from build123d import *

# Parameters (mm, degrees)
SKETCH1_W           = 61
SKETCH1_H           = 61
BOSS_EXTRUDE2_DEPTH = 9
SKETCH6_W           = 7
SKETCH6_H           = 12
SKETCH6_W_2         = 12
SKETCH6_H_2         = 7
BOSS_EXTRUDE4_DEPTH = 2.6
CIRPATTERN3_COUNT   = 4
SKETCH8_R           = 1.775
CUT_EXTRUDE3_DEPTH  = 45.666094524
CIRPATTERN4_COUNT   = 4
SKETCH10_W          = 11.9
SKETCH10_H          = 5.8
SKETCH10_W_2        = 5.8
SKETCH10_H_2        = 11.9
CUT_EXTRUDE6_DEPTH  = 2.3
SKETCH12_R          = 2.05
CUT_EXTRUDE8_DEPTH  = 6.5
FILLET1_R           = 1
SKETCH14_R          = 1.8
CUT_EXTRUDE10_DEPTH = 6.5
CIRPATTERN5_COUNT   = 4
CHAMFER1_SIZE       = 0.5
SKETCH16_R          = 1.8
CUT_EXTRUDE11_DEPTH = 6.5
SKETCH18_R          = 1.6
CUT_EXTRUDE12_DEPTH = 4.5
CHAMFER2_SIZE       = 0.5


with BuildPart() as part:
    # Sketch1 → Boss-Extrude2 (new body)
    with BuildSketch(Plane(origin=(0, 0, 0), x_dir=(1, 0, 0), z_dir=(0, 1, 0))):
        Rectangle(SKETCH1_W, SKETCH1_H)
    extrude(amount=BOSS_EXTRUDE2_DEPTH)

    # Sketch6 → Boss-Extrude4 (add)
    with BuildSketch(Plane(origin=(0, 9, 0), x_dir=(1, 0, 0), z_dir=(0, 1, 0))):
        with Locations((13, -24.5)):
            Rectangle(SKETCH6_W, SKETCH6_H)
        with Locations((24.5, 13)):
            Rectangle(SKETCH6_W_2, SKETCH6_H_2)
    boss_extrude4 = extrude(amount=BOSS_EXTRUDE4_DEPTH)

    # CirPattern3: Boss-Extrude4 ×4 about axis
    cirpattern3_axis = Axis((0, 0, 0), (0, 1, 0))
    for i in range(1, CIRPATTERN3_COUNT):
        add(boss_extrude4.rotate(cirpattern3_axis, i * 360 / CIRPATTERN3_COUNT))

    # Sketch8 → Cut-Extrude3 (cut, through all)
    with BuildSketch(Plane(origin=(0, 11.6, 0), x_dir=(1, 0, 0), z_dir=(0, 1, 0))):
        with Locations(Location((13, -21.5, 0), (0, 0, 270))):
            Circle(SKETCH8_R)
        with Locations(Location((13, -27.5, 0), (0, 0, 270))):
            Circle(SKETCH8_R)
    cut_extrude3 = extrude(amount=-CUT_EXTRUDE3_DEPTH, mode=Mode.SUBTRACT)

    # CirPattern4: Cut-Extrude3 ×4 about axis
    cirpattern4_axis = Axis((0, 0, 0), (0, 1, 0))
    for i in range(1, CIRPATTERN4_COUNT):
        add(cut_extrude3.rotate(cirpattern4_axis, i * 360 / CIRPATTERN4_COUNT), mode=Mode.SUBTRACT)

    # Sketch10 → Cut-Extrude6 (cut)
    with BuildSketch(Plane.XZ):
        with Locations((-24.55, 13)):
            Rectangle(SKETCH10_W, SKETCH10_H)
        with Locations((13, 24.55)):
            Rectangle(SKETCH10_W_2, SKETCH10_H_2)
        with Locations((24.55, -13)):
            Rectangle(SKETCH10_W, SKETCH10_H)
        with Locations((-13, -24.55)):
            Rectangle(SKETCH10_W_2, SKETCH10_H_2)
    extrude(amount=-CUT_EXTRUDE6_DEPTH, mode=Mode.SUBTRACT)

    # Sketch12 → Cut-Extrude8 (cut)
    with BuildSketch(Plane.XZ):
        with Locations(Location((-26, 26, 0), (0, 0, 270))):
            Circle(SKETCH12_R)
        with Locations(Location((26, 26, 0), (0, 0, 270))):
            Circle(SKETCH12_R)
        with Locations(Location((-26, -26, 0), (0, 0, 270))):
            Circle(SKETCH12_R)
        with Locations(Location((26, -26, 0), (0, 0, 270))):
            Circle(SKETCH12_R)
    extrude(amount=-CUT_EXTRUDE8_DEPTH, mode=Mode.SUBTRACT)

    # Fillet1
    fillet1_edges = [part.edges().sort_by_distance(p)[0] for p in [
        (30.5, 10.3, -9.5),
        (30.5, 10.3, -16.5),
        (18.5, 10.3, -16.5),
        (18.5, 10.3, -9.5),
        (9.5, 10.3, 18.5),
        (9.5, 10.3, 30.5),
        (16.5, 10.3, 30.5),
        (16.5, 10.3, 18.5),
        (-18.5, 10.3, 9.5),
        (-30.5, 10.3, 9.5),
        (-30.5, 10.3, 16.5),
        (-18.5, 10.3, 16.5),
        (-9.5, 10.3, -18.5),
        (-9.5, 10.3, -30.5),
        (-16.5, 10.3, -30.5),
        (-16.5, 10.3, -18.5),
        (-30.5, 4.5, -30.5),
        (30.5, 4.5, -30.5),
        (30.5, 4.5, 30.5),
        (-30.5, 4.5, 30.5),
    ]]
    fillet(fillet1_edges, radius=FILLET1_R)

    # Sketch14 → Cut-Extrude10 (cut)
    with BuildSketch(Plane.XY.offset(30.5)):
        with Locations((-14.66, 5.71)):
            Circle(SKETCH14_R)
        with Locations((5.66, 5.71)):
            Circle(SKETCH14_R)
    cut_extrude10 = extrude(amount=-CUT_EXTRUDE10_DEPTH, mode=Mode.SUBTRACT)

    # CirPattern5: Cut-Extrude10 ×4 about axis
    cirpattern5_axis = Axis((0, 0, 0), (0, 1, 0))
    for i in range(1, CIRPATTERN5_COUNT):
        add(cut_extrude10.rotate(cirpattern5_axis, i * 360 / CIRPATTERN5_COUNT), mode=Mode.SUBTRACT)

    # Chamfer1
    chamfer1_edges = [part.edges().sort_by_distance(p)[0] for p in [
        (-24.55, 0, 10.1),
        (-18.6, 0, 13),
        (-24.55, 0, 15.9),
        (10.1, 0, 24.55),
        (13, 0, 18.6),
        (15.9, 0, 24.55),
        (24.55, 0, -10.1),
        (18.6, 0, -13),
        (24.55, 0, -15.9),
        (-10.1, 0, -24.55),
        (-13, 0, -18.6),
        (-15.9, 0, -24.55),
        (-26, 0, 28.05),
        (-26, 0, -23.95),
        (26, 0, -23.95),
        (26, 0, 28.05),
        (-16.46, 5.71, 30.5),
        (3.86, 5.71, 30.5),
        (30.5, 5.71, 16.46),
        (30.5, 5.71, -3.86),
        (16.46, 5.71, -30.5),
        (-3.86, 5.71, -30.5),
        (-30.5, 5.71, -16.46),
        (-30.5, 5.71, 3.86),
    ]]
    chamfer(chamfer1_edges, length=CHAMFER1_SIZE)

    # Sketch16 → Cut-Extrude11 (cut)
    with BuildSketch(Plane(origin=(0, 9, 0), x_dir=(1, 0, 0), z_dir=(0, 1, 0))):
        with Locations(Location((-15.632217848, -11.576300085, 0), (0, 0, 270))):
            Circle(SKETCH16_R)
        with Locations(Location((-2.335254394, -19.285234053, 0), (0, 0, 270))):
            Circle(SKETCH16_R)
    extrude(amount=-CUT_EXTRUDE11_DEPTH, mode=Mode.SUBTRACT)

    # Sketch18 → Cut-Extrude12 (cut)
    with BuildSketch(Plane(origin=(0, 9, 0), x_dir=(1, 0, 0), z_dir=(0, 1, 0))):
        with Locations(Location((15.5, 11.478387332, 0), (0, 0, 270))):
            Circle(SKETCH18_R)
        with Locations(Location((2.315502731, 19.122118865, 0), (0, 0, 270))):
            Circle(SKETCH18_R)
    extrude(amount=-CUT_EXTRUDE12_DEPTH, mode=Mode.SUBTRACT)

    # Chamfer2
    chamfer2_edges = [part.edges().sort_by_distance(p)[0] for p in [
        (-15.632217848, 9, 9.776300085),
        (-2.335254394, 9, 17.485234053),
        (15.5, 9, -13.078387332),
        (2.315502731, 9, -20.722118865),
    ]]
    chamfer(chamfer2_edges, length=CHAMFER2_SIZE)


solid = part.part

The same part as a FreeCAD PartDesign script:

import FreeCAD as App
import Part
import Sketcher
from FreeCAD import Vector


def edges_at(feature, points):
    """Names of the edges that pass closest to the given points."""
    edges = feature.Shape.Edges
    near = lambda p: min(range(len(edges)), key=lambda i: edges[i].distToShape(Part.Vertex(*p))[0])
    return sorted({f"Edge{near(p) + 1}" for p in points})


def add_polygon(sketch, points):
    """Adds a closed chain of lines whose ends are joined by coincident constraints."""
    first, n = sketch.GeometryCount, len(points)
    for a, b in zip(points, points[1:] + points[:1]):
        sketch.addGeometry(Part.LineSegment(App.Vector(*a, 0), App.Vector(*b, 0)), False)
    for i in range(n):
        sketch.addConstraint(Sketcher.Constraint("Coincident", first + i, 2, first + (i + 1) % n, 1))

doc = App.newDocument("Part")
body = doc.addObject("PartDesign::Body", "Body")

# Sketch on XZ plane
sketch1 = doc.addObject("Sketcher::SketchObject", "Sketch")
body.addObject(sketch1)
sketch1.AttachmentSupport = (doc.XZ_Plane, [""])
sketch1.MapMode = "FlatFace"
add_polygon(sketch1, [(-30, -30), (-30, 30), (30, 30), (30, -30)])  # lines 0-3
sketch1.addConstraint(Sketcher.Constraint("Vertical", 0))
sketch1.addConstraint(Sketcher.Constraint("Horizontal", 1))
sketch1.addConstraint(Sketcher.Constraint("Vertical", 2))
sketch1.addConstraint(Sketcher.Constraint("Horizontal", 3))
sketch1.addConstraint(Sketcher.Constraint("Symmetric", 0, 2, 2, 2, -1, 1))
sketch1.addConstraint(Sketcher.Constraint("Equal", 3, 0))
sketch1.addConstraint(Sketcher.Constraint("DistanceX", 1, 1, 1, 2, 61.0))
pad1 = doc.addObject("PartDesign::Pad", "Pad")
body.addObject(pad1)
pad1.Profile = sketch1
pad1.Length = 9
pad1.Reversed = True

# Sketch on XZ plane
sketch2 = doc.addObject("Sketcher::SketchObject", "Sketch001")
body.addObject(sketch2)
sketch2.AttachmentSupport = (doc.XZ_Plane, [""])
sketch2.MapMode = "FlatFace"
sketch2.AttachmentOffset = App.Placement(Vector(0, 0, -9), App.Rotation())
add_polygon(sketch2, [(10, 18), (10, 30), (16, 30), (16, 18)])  # lines 0-3
add_polygon(sketch2, [(18, -16), (18, -10), (30, -10), (30, -16)])  # lines 4-7
sketch2.addConstraint(Sketcher.Constraint("Vertical", 0))
sketch2.addConstraint(Sketcher.Constraint("Horizontal", 1))
sketch2.addConstraint(Sketcher.Constraint("Vertical", 2))
sketch2.addConstraint(Sketcher.Constraint("Horizontal", 3))
sketch2.addConstraint(Sketcher.Constraint("Vertical", 4))
sketch2.addConstraint(Sketcher.Constraint("Horizontal", 5))
sketch2.addConstraint(Sketcher.Constraint("Vertical", 6))
sketch2.addConstraint(Sketcher.Constraint("Horizontal", 7))
sketch2.addConstraint(Sketcher.Constraint("Equal", 7, 0))
sketch2.addConstraint(Sketcher.Constraint("Equal", 3, 4))
sketch2.addConstraint(Sketcher.Constraint("DistanceX", 1, 1, 1, 2, 7.0))
sketch2.addConstraint(Sketcher.Constraint("DistanceX", 5, 1, 5, 2, 12.0))
sketch2.addConstraint(Sketcher.Constraint("DistanceX", 2, 2, 4, 2, 2.0))
sketch2.addConstraint(Sketcher.Constraint("DistanceY", 4, 2, 2, 2, 28.0))
sketch2.addConstraint(Sketcher.Constraint("DistanceX", -1, 1, 0, 2, 9.5))
sketch2.addConstraint(Sketcher.Constraint("DistanceY", -1, 1, 0, 2, 30.5))
pad2 = doc.addObject("PartDesign::Pad", "Pad001")
body.addObject(pad2)
pad2.Profile = sketch2
pad2.Length = 2.6
pad2.Reversed = True
doc.recompute()

polarpattern = doc.addObject("PartDesign::PolarPattern", "PolarPattern")
body.addObject(polarpattern)
polarpattern.Originals = [pad2]
polarpattern.Axis = (doc.Y_Axis, [""])
polarpattern.Angle = 360
polarpattern.Occurrences = 4
body.Tip = polarpattern

# Sketch on XZ plane
sketch3 = doc.addObject("Sketcher::SketchObject", "Sketch002")
body.addObject(sketch3)
sketch3.AttachmentSupport = (doc.XZ_Plane, [""])
sketch3.MapMode = "FlatFace"
sketch3.AttachmentOffset = App.Placement(Vector(0, 0, -11.6), App.Rotation())
sketch3.addGeometry(Part.Circle(Vector(13, 21.5, 0), Vector(0, 0, 1), 1.8), False)
sketch3.addGeometry(Part.Circle(Vector(13, 27.5, 0), Vector(0, 0, 1), 1.8), False)
sketch3.addConstraint(Sketcher.Constraint("Equal", 0, 1))
sketch3.addConstraint(Sketcher.Constraint("Vertical", 0, 3, 1, 3))
sketch3.addConstraint(Sketcher.Constraint("Diameter", 0, 3.55))
sketch3.addConstraint(Sketcher.Constraint("DistanceX", -1, 1, 0, 3, 13.0))
sketch3.addConstraint(Sketcher.Constraint("DistanceY", 0, 3, 1, 3, 6.0))
sketch3.addConstraint(Sketcher.Constraint("DistanceY", -1, 1, 0, 3, 21.5))
pocket1 = doc.addObject("PartDesign::Pocket", "Pocket")
body.addObject(pocket1)
pocket1.Profile = sketch3
pocket1.Type = "ThroughAll"
pocket1.Reversed = True
doc.recompute()

polarpattern2 = doc.addObject("PartDesign::PolarPattern", "PolarPattern001")
body.addObject(polarpattern2)
polarpattern2.Originals = [pocket1]
polarpattern2.Axis = (doc.Y_Axis, [""])
polarpattern2.Angle = 360
polarpattern2.Occurrences = 4
body.Tip = polarpattern2

# Sketch on XZ plane
sketch4 = doc.addObject("Sketcher::SketchObject", "Sketch003")
body.addObject(sketch4)
sketch4.AttachmentSupport = (doc.XZ_Plane, [""])
sketch4.MapMode = "FlatFace"
add_polygon(sketch4, [(-30, 16), (-30, 10), (-19, 10), (-19, 16)])  # lines 0-3
add_polygon(sketch4, [(10, 30), (10, 19), (16, 19), (16, 30)])  # lines 4-7
add_polygon(sketch4, [(19, -10), (19, -16), (30, -16), (30, -10)])  # lines 8-11
add_polygon(sketch4, [(-16, -19), (-16, -30), (-10, -30), (-10, -19)])  # lines 12-15
sketch4.addConstraint(Sketcher.Constraint("Vertical", 0))
sketch4.addConstraint(Sketcher.Constraint("Horizontal", 1))
sketch4.addConstraint(Sketcher.Constraint("Vertical", 2))
sketch4.addConstraint(Sketcher.Constraint("Horizontal", 3))
sketch4.addConstraint(Sketcher.Constraint("Vertical", 4))
sketch4.addConstraint(Sketcher.Constraint("Horizontal", 5))
sketch4.addConstraint(Sketcher.Constraint("Vertical", 6))
sketch4.addConstraint(Sketcher.Constraint("Horizontal", 7))
sketch4.addConstraint(Sketcher.Constraint("Vertical", 8))
sketch4.addConstraint(Sketcher.Constraint("Horizontal", 9))
sketch4.addConstraint(Sketcher.Constraint("Vertical", 10))
sketch4.addConstraint(Sketcher.Constraint("Horizontal", 11))
sketch4.addConstraint(Sketcher.Constraint("Vertical", 12))
sketch4.addConstraint(Sketcher.Constraint("Horizontal", 13))
sketch4.addConstraint(Sketcher.Constraint("Vertical", 14))
sketch4.addConstraint(Sketcher.Constraint("Horizontal", 15))
sketch4.addConstraint(Sketcher.Constraint("Symmetric", 2, 2, 8, 2, -1, 1))
sketch4.addConstraint(Sketcher.Constraint("Symmetric", 0, 2, 10, 2, -1, 1))
sketch4.addConstraint(Sketcher.Constraint("Symmetric", 6, 2, 12, 2, -1, 1))
sketch4.addConstraint(Sketcher.Constraint("Symmetric", 4, 2, 14, 2, -1, 1))
sketch4.addConstraint(Sketcher.Constraint("Equal", 15, 0))
sketch4.addConstraint(Sketcher.Constraint("Equal", 11, 4))
sketch4.addConstraint(Sketcher.Constraint("DistanceX", 1, 1, 1, 2, 11.9))
sketch4.addConstraint(Sketcher.Constraint("DistanceX", 5, 1, 5, 2, 5.8))
sketch4.addConstraint(Sketcher.Constraint("DistanceY", 8, 2, 1, 2, 26.0))
sketch4.addConstraint(Sketcher.Constraint("DistanceX", 0, 2, -1, 1, 30.5))
sketch4.addConstraint(Sketcher.Constraint("DistanceX", -1, 1, 4, 2, 10.1))
sketch4.addConstraint(Sketcher.Constraint("DistanceY", -1, 1, 4, 2, 18.6))
pocket2 = doc.addObject("PartDesign::Pocket", "Pocket001")
body.addObject(pocket2)
pocket2.Profile = sketch4
pocket2.Length = 2.3

# Sketch on XZ plane
sketch5 = doc.addObject("Sketcher::SketchObject", "Sketch004")
body.addObject(sketch5)
sketch5.AttachmentSupport = (doc.XZ_Plane, [""])
sketch5.MapMode = "FlatFace"
sketch5.addGeometry(Part.Circle(Vector(-26, 26, 0), Vector(0, 0, 1), 2), False)
sketch5.addGeometry(Part.Circle(Vector(26, 26, 0), Vector(0, 0, 1), 2), False)
sketch5.addGeometry(Part.Circle(Vector(-26, -26, 0), Vector(0, 0, 1), 2), False)
sketch5.addGeometry(Part.Circle(Vector(26, -26, 0), Vector(0, 0, 1), 2), False)
sketch5.addConstraint(Sketcher.Constraint("Equal", 0, 1))
sketch5.addConstraint(Sketcher.Constraint("Equal", 1, 2))
sketch5.addConstraint(Sketcher.Constraint("Equal", 2, 3))
sketch5.addConstraint(Sketcher.Constraint("Symmetric", 1, 3, 2, 3, -1, 1))
sketch5.addConstraint(Sketcher.Constraint("Symmetric", 0, 3, 3, 3, -1, 1))
sketch5.addConstraint(Sketcher.Constraint("Symmetric", 0, 3, 1, 3, -2))
sketch5.addConstraint(Sketcher.Constraint("Diameter", 0, 4.1))
sketch5.addConstraint(Sketcher.Constraint("DistanceX", 0, 3, -1, 1, 26.0))
sketch5.addConstraint(Sketcher.Constraint("DistanceY", -1, 1, 0, 3, 26.0))
pocket3 = doc.addObject("PartDesign::Pocket", "Pocket002")
body.addObject(pocket3)
pocket3.Profile = sketch5
pocket3.Length = 6.5
doc.recompute()

fillet = doc.addObject("PartDesign::Fillet", "Fillet")
body.addObject(fillet)
fillet.Base = (pocket3, edges_at(pocket3, [
    (30.5, 10.3, -9.5),
    (30.5, 10.3, -16.5),
    (18.5, 10.3, -16.5),
    (18.5, 10.3, -9.5),
    (9.5, 10.3, 18.5),
    (9.5, 10.3, 30.5),
    (16.5, 10.3, 30.5),
    (16.5, 10.3, 18.5),
    (-18.5, 10.3, 9.5),
    (-30.5, 10.3, 9.5),
    (-30.5, 10.3, 16.5),
    (-18.5, 10.3, 16.5),
    (-9.5, 10.3, -18.5),
    (-9.5, 10.3, -30.5),
    (-16.5, 10.3, -30.5),
    (-16.5, 10.3, -18.5),
    (-30.5, 4.5, -30.5),
    (30.5, 4.5, -30.5),
    (30.5, 4.5, 30.5),
    (-30.5, 4.5, 30.5),
]))
fillet.Radius = 1

# Sketch on XY plane
sketch6 = doc.addObject("Sketcher::SketchObject", "Sketch005")
body.addObject(sketch6)
sketch6.AttachmentSupport = (doc.XY_Plane, [""])
sketch6.MapMode = "FlatFace"
sketch6.AttachmentOffset = App.Placement(Vector(0, 0, 30.5), App.Rotation())
sketch6.addGeometry(Part.Circle(Vector(-14.7, 5.7, 0), Vector(0, 0, 1), 1.8), False)
sketch6.addGeometry(Part.Circle(Vector(5.7, 5.7, 0), Vector(0, 0, 1), 1.8), False)
sketch6.addConstraint(Sketcher.Constraint("Equal", 0, 1))
sketch6.addConstraint(Sketcher.Constraint("Horizontal", 0, 3, 1, 3))
sketch6.addConstraint(Sketcher.Constraint("Diameter", 0, 3.6))
sketch6.addConstraint(Sketcher.Constraint("DistanceX", 0, 3, -1, 1, 14.66))
sketch6.addConstraint(Sketcher.Constraint("DistanceY", -1, 1, 0, 3, 5.71))
sketch6.addConstraint(Sketcher.Constraint("DistanceX", -1, 1, 1, 3, 5.66))
pocket4 = doc.addObject("PartDesign::Pocket", "Pocket003")
body.addObject(pocket4)
pocket4.Profile = sketch6
pocket4.Length = 6.5
doc.recompute()

polarpattern3 = doc.addObject("PartDesign::PolarPattern", "PolarPattern002")
body.addObject(polarpattern3)
polarpattern3.Originals = [pocket4]
polarpattern3.Axis = (doc.Y_Axis, [""])
polarpattern3.Angle = 360
polarpattern3.Occurrences = 4
body.Tip = polarpattern3
doc.recompute()

chamfer = doc.addObject("PartDesign::Chamfer", "Chamfer")
body.addObject(chamfer)
chamfer.Base = (polarpattern3, edges_at(polarpattern3, [
    (-24.55, 0, 10.1),
    (-18.6, 0, 13),
    (-24.55, 0, 15.9),
    (10.1, 0, 24.55),
    (13, 0, 18.6),
    (15.9, 0, 24.55),
    (24.55, 0, -10.1),
    (18.6, 0, -13),
    (24.55, 0, -15.9),
    (-10.1, 0, -24.55),
    (-13, 0, -18.6),
    (-15.9, 0, -24.55),
    (-26, 0, 28.05),
    (-26, 0, -23.95),
    (26, 0, -23.95),
    (26, 0, 28.05),
    (-16.46, 5.71, 30.5),
    (3.86, 5.71, 30.5),
    (30.5, 5.71, 16.46),
    (30.5, 5.71, -3.86),
    (16.46, 5.71, -30.5),
    (-3.86, 5.71, -30.5),
    (-30.5, 5.71, -16.46),
    (-30.5, 5.71, 3.86),
]))
chamfer.Size = 0.5

# Sketch on XZ plane
sketch7 = doc.addObject("Sketcher::SketchObject", "Sketch006")
body.addObject(sketch7)
sketch7.AttachmentSupport = (doc.XZ_Plane, [""])
sketch7.MapMode = "FlatFace"
sketch7.AttachmentOffset = App.Placement(Vector(0, 0, -9), App.Rotation())
sketch7.addGeometry(Part.Circle(Vector(-15.6, 11.6, 0), Vector(0, 0, 1), 1.8), False)
sketch7.addGeometry(Part.Circle(Vector(-2.3, 19.3, 0), Vector(0, 0, 1), 1.8), False)
sketch7.addConstraint(Sketcher.Constraint("Equal", 0, 1))
sketch7.addConstraint(Sketcher.Constraint("Diameter", 0, 3.6))
sketch7.addConstraint(Sketcher.Constraint("DistanceY", -1, 1, 0, 3, 11.5763))
sketch7.addConstraint(Sketcher.Constraint("DistanceX", 0, 3, -1, 1, 15.632218))
sketch7.addConstraint(Sketcher.Constraint("DistanceX", 1, 3, -1, 1, 2.335254))
sketch7.addConstraint(Sketcher.Constraint("DistanceY", -1, 1, 1, 3, 19.285234))
pocket5 = doc.addObject("PartDesign::Pocket", "Pocket004")
body.addObject(pocket5)
pocket5.Profile = sketch7
pocket5.Length = 6.5
pocket5.Reversed = True

# Sketch on XZ plane
sketch8 = doc.addObject("Sketcher::SketchObject", "Sketch007")
body.addObject(sketch8)
sketch8.AttachmentSupport = (doc.XZ_Plane, [""])
sketch8.MapMode = "FlatFace"
sketch8.AttachmentOffset = App.Placement(Vector(0, 0, -9), App.Rotation())
sketch8.addGeometry(Part.Circle(Vector(15.5, -11.5, 0), Vector(0, 0, 1), 1.6), False)
sketch8.addGeometry(Part.Circle(Vector(2.3, -19.1, 0), Vector(0, 0, 1), 1.6), False)
sketch8.addConstraint(Sketcher.Constraint("Equal", 0, 1))
sketch8.addConstraint(Sketcher.Constraint("Diameter", 0, 3.2))
sketch8.addConstraint(Sketcher.Constraint("DistanceX", -1, 1, 0, 3, 15.5))
sketch8.addConstraint(Sketcher.Constraint("DistanceY", 1, 3, -1, 1, 19.122119))
sketch8.addConstraint(Sketcher.Constraint("DistanceY", 1, 3, 0, 3, 7.643732))
sketch8.addConstraint(Sketcher.Constraint("DistanceX", -1, 1, 1, 3, 2.315503))
pocket6 = doc.addObject("PartDesign::Pocket", "Pocket005")
body.addObject(pocket6)
pocket6.Profile = sketch8
pocket6.Length = 4.5
pocket6.Reversed = True
doc.recompute()

chamfer2 = doc.addObject("PartDesign::Chamfer", "Chamfer001")
body.addObject(chamfer2)
chamfer2.Base = (pocket6, edges_at(pocket6, [
    (-15.632, 9, 9.776),
    (-2.335, 9, 17.485),
    (15.5, 9, -13.078),
    (2.316, 9, -20.722),
]))
chamfer2.Size = 0.5

doc.recompute()
